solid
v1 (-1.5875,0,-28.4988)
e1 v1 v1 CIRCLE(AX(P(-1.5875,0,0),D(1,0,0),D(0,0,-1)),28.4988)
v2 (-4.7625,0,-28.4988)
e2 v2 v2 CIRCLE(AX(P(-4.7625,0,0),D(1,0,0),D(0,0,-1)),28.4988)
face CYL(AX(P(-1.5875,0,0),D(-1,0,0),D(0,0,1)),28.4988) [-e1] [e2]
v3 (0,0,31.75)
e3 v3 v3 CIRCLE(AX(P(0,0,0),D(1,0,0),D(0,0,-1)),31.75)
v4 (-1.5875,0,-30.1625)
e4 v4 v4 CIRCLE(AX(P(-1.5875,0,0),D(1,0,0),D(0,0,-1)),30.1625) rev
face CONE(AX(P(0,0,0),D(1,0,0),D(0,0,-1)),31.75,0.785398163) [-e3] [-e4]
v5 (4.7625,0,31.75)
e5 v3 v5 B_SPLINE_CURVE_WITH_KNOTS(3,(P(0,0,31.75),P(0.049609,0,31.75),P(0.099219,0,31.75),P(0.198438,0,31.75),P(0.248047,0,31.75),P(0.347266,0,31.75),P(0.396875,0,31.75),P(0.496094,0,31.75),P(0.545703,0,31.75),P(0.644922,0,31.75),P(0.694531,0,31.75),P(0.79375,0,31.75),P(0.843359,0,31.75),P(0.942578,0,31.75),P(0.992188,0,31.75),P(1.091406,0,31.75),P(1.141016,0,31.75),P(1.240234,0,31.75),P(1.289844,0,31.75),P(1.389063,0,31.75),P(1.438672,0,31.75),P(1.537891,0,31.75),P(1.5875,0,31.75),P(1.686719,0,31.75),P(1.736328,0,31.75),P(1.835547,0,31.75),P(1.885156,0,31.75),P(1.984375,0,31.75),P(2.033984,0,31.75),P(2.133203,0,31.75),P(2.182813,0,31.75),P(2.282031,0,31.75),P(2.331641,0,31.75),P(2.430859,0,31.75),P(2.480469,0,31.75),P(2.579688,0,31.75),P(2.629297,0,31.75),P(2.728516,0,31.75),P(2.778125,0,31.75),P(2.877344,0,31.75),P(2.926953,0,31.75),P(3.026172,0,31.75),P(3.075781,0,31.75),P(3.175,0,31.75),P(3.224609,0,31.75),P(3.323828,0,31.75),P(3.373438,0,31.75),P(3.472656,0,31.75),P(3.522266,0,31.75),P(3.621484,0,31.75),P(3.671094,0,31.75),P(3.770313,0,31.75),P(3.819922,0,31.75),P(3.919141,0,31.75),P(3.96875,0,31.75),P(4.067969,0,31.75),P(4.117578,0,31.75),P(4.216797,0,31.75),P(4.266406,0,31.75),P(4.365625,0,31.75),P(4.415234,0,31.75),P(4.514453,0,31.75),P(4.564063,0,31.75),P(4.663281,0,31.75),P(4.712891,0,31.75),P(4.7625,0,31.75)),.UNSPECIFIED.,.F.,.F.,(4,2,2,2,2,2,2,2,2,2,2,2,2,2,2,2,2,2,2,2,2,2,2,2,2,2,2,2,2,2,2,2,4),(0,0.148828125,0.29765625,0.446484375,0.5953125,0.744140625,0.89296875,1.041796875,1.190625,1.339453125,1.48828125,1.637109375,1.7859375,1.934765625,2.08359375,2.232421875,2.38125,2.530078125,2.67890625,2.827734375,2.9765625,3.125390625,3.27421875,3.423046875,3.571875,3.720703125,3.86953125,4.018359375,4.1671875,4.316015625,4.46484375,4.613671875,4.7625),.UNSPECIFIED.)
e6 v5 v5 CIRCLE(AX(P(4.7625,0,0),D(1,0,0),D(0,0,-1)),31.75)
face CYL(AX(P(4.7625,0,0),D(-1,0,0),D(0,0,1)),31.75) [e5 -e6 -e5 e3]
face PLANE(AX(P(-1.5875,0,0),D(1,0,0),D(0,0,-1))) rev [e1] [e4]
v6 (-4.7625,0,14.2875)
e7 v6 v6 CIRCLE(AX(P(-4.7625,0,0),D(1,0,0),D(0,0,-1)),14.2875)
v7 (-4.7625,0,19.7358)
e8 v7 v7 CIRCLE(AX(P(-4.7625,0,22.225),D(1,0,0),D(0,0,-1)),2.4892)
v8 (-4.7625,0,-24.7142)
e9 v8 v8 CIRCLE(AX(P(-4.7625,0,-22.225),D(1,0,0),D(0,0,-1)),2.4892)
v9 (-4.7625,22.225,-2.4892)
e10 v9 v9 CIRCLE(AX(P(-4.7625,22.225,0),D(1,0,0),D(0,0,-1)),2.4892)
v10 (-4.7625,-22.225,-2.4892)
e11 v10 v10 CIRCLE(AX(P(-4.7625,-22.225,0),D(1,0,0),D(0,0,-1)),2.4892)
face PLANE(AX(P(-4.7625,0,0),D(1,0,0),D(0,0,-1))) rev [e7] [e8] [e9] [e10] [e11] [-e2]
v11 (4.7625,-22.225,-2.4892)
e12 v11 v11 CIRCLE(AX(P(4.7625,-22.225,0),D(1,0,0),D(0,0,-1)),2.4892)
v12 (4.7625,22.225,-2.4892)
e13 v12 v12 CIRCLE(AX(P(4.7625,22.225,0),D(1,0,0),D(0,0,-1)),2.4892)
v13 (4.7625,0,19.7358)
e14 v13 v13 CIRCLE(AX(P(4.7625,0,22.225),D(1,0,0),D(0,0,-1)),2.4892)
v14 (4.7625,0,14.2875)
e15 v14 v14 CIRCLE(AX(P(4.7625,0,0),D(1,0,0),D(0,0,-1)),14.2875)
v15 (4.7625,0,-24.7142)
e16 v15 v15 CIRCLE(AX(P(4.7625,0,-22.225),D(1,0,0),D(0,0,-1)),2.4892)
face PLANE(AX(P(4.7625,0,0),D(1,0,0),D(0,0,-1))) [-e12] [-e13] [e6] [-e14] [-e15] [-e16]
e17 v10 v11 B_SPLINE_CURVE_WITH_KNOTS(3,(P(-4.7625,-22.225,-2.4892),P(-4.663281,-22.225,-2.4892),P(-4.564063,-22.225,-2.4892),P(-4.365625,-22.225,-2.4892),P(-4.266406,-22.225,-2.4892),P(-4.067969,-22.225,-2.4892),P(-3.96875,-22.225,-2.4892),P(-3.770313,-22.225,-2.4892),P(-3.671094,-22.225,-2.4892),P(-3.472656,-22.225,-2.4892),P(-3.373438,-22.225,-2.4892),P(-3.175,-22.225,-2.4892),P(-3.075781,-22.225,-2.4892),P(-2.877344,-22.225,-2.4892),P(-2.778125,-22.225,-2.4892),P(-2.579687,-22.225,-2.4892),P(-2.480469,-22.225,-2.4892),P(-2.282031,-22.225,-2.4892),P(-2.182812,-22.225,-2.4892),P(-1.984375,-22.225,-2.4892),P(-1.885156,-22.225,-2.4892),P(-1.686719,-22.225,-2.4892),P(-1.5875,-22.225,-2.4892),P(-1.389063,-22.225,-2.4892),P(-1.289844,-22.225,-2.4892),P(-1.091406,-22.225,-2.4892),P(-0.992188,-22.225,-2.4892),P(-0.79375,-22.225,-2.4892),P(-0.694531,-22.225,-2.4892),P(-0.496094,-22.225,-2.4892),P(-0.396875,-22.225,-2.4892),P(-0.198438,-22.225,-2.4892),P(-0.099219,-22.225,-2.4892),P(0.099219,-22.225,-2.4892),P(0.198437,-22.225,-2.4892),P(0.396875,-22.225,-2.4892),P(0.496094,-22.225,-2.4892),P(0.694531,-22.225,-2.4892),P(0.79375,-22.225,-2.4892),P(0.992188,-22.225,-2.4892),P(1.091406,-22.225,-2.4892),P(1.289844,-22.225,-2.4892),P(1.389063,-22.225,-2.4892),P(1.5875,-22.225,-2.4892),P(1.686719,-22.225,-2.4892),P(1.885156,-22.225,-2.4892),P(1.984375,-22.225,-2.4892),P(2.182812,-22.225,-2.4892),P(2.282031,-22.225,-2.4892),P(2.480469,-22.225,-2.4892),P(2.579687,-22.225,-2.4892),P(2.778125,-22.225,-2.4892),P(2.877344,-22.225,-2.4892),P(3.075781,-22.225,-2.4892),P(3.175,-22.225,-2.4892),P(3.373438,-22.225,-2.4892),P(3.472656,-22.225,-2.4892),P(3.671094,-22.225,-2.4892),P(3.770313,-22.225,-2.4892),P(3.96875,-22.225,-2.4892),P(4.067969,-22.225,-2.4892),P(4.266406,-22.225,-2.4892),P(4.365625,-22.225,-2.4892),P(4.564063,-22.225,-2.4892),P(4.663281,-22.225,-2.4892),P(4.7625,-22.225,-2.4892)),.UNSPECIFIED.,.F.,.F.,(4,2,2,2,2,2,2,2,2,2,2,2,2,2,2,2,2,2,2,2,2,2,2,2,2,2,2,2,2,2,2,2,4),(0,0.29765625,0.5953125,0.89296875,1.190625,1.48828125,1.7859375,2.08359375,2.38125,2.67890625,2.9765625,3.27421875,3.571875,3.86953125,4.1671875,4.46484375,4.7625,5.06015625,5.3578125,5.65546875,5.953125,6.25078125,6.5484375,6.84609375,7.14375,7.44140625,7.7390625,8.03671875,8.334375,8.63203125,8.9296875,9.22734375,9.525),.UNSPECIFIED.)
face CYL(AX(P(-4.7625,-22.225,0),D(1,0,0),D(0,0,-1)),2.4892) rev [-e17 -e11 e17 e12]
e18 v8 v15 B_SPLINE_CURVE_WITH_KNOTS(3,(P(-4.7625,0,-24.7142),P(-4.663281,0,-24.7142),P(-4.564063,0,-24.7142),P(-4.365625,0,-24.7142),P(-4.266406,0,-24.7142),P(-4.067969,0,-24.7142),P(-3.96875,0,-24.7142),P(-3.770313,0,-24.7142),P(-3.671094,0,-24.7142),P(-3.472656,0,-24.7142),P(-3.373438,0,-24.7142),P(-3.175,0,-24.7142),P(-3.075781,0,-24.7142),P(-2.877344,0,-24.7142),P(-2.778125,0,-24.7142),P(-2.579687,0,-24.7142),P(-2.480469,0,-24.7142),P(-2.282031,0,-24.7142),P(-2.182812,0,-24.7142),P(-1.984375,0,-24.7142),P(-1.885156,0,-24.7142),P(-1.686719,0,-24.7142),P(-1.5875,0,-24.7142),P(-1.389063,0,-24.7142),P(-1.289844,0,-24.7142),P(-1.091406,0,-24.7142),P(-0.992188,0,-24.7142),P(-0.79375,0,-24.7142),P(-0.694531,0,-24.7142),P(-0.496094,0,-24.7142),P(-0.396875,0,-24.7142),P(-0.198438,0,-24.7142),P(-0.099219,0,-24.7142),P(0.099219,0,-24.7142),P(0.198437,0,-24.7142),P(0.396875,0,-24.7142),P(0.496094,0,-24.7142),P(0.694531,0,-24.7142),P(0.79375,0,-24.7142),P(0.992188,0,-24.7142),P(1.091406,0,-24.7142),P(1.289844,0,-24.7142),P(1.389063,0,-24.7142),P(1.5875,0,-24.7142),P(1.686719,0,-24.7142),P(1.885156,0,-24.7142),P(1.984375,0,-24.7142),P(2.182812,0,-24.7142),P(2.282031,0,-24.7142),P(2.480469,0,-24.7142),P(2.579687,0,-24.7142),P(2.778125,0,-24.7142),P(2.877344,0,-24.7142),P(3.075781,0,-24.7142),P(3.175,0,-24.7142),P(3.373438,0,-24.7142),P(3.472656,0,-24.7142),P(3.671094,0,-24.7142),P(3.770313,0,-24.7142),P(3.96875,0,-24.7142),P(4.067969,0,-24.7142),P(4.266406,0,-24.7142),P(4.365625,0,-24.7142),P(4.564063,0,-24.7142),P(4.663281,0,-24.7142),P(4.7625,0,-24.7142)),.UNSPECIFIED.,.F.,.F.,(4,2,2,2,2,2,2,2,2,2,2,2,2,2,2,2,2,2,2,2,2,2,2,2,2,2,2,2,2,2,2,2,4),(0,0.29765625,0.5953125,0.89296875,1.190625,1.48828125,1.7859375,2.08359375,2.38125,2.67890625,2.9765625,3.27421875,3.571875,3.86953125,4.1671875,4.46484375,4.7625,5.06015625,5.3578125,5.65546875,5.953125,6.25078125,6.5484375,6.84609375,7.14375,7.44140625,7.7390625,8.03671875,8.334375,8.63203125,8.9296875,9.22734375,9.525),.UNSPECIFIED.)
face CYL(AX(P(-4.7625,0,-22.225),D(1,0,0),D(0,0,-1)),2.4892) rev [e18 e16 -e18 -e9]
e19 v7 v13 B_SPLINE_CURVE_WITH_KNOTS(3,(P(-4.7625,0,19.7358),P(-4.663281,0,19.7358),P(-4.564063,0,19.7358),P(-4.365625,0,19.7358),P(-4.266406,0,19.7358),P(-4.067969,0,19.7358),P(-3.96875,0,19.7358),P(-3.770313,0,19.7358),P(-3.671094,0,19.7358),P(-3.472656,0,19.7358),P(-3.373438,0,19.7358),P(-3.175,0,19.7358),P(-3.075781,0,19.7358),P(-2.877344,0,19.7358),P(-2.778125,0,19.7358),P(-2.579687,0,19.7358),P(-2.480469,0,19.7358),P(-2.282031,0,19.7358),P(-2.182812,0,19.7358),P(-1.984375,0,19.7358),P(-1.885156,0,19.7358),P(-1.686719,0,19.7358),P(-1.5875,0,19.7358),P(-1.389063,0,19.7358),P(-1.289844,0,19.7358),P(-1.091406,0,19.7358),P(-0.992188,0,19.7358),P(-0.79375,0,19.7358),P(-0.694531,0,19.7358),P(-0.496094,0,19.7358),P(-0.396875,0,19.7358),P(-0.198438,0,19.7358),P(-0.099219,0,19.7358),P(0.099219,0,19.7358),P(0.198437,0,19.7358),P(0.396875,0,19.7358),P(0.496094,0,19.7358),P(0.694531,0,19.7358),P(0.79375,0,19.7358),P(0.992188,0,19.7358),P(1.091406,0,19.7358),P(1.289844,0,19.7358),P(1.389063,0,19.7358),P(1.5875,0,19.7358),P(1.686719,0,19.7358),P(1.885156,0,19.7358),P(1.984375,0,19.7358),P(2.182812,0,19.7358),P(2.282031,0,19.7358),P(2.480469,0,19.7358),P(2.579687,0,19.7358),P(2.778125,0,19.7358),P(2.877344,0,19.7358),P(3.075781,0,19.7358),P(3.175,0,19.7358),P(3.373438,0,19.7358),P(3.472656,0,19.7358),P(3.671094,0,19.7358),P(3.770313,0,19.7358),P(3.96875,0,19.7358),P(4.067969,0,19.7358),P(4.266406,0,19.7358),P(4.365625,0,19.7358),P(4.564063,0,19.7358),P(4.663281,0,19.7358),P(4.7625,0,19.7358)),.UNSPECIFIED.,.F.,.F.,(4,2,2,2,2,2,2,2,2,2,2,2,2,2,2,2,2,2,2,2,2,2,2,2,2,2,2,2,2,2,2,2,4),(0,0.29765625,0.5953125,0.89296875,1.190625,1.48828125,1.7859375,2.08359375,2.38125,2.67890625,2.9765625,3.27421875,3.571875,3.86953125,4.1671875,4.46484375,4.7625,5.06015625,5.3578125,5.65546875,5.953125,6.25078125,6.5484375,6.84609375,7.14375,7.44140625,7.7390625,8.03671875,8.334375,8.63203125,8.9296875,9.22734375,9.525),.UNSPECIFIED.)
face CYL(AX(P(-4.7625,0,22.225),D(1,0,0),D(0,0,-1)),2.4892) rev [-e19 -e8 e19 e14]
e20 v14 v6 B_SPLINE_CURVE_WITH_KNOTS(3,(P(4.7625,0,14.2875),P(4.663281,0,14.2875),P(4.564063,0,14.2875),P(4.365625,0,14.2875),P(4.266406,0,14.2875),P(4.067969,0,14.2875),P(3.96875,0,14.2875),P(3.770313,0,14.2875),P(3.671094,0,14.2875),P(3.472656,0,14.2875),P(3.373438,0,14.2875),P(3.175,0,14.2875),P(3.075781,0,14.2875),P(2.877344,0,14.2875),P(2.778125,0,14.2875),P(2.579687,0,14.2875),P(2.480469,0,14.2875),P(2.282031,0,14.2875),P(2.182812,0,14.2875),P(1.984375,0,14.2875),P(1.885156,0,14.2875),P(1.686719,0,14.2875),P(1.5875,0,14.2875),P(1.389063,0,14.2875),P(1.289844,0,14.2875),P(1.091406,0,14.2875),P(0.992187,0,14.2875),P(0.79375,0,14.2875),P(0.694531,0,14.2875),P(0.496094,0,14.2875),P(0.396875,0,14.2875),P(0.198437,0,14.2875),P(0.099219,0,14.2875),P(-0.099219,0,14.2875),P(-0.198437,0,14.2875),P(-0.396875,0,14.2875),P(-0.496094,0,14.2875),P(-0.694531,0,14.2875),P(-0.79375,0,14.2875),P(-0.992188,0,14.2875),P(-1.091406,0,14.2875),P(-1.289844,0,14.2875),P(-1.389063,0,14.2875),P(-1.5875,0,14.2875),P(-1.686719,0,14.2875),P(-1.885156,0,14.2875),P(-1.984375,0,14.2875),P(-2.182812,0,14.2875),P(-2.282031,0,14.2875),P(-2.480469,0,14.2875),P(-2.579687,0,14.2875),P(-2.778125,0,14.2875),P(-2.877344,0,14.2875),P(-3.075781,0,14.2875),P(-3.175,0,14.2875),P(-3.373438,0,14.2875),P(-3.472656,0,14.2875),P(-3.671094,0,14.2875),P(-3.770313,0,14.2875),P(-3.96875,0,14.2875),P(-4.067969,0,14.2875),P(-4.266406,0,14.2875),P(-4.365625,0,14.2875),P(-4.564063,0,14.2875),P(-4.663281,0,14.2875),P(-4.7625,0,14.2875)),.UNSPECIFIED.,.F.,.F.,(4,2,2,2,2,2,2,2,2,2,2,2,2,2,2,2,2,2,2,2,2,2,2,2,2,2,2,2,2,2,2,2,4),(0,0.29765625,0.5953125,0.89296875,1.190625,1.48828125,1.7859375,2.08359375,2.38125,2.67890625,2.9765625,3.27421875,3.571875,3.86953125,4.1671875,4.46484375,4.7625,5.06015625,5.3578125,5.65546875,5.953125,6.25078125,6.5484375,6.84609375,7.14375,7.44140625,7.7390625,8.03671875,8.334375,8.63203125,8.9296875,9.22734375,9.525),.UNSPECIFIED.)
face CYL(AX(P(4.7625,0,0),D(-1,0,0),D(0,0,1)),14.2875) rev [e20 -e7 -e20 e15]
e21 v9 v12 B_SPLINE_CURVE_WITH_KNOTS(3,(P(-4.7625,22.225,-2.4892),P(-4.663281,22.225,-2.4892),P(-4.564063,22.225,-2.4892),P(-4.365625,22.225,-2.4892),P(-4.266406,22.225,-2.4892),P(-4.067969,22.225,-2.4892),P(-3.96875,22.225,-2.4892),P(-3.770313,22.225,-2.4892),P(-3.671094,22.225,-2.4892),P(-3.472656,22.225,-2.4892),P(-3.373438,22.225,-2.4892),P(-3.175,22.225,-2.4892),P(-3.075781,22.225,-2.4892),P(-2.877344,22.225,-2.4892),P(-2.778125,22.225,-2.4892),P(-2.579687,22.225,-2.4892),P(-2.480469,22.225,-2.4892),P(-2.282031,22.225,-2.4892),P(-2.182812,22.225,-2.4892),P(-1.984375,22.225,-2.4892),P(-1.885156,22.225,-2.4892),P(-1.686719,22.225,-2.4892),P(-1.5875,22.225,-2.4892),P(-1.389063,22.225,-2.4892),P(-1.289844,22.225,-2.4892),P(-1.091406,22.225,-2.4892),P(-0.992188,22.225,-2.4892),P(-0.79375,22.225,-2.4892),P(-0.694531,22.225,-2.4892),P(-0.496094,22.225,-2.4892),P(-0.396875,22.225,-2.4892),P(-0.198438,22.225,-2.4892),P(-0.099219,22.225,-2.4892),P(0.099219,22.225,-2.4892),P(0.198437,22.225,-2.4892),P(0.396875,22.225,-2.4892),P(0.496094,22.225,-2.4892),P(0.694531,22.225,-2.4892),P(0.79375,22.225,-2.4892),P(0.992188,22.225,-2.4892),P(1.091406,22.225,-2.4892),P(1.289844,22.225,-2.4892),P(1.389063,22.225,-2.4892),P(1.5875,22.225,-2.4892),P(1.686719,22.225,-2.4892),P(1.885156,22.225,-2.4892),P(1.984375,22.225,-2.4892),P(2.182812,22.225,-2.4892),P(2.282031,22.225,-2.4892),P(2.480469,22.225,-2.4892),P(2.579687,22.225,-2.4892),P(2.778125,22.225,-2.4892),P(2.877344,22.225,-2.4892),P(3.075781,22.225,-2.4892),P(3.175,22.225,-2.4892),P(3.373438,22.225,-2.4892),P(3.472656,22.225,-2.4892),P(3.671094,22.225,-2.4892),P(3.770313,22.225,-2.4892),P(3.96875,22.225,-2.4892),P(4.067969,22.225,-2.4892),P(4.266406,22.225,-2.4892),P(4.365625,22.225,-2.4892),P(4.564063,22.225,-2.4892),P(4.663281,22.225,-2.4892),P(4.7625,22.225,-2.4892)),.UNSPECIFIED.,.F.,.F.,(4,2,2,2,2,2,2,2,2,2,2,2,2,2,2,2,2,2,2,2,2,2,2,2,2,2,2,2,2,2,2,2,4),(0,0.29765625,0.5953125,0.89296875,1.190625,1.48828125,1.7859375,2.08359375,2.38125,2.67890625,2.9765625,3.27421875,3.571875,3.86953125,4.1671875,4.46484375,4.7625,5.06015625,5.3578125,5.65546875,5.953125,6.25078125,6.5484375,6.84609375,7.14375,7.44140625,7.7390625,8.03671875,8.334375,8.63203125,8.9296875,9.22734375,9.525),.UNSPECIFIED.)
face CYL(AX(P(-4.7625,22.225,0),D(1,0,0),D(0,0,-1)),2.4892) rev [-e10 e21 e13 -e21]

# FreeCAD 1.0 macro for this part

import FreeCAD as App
import Part
import Sketcher
from FreeCAD import Vector
Q = App.Units.Quantity


def edges_at(feature, points):
    """Names of the edges that pass closest to the given points."""
    edges = feature.Shape.Edges
    near = lambda p: min(range(len(edges)), key=lambda i: edges[i].distToShape(Part.Vertex(*p))[0])
    return sorted({f"Edge{near(p) + 1}" for p in points})

doc = App.newDocument("Part")
params = doc.addObject("Spreadsheet::Sheet", "Params")
for row, (alias, value) in enumerate([
    ("sketch1_diameter", "2.5 in"),
    ("sketch1_diameter2", "1.125 in"),
    ("pad1_length", "0.375 in"),
    ("sketch2_diameter", "2.5 in"),
    ("sketch2_diameter2", "2.244 in"),
    ("pocket1_length", "0.125 in"),
    ("sketch3_diameter", "0.196 in"),
    ("chamfer_size", "0.0625 in"),
], start=1):
    params.set(f"A{row}", alias)
    params.set(f"B{row}", "=" + value)
    params.setAlias(f"B{row}", alias)

body = doc.addObject("PartDesign::Body", "Body")

# Sketch on YZ plane
sketch1 = body.newObject("Sketcher::SketchObject", "Sketch")
sketch1.AttachmentSupport = (doc.getObject("YZ_Plane"), [""])
sketch1.MapMode = "FlatFace"
sketch1.addGeometry([
    Part.Circle(Vector(0, 0, 0), Vector(0, 0, 1), 32),
    Part.Circle(Vector(0, 0, 0), Vector(0, 0, 1), 14),
], False)
sketch1.addConstraint([
    Sketcher.Constraint("Coincident", 0, 3, -1, 1),
    Sketcher.Constraint("Coincident", 1, 3, -1, 1),
    Sketcher.Constraint("Diameter", 0, Q("2.5 in")),
    Sketcher.Constraint("Diameter", 1, Q("1.125 in")),
])
sketch1.setExpression("Constraints[2]", "Params.sketch1_diameter")
sketch1.setExpression("Constraints[3]", "Params.sketch1_diameter2")
pad1 = body.newObject("PartDesign::Pad", "Pad")
pad1.Profile = sketch1
pad1.setExpression("Length", "Params.pad1_length")
pad1.Midplane = True

# Sketch on YZ plane
sketch2 = body.newObject("Sketcher::SketchObject", "Sketch001")
sketch2.AttachmentSupport = (doc.getObject("YZ_Plane"), [""])
sketch2.MapMode = "FlatFace"
sketch2.AttachmentOffset = App.Placement(Vector(0, 0, -0.0625 * 25.4), App.Rotation())
sketch2.addGeometry([
    Part.Circle(Vector(0, 0, 0), Vector(0, 0, 1), 32),
    Part.Circle(Vector(0, 0, 0), Vector(0, 0, 1), 28),
], False)
sketch2.addConstraint([
    Sketcher.Constraint("Coincident", 0, 3, -1, 1),
    Sketcher.Constraint("Coincident", 1, 3, -1, 1),
    Sketcher.Constraint("Diameter", 0, Q("2.5 in")),
    Sketcher.Constraint("Diameter", 1, Q("2.244 in")),
])
sketch2.setExpression("Constraints[2]", "Params.sketch2_diameter")
sketch2.setExpression("Constraints[3]", "Params.sketch2_diameter2")
pocket1 = body.newObject("PartDesign::Pocket", "Pocket")
pocket1.Profile = sketch2
pocket1.setExpression("Length", "Params.pocket1_length")

# Sketch on YZ plane
sketch3 = body.newObject("Sketcher::SketchObject", "Sketch002")
sketch3.AttachmentSupport = (doc.getObject("YZ_Plane"), [""])
sketch3.MapMode = "FlatFace"
sketch3.AttachmentOffset = App.Placement(Vector(0, 0, 0.1875 * 25.4), App.Rotation())
sketch3.addGeometry([
    Part.Circle(Vector(22.2, 0, 0), Vector(0, 0, 1), 2.5),
    Part.Circle(Vector(0, 22.2, 0), Vector(0, 0, 1), 2.5),
    Part.Circle(Vector(-22.2, 0, 0), Vector(0, 0, 1), 2.5),
    Part.Circle(Vector(0, -22.2, 0), Vector(0, 0, 1), 2.5),
], False)
sketch3.addConstraint([
    Sketcher.Constraint("Equal", 0, 1),
    Sketcher.Constraint("Equal", 1, 2),
    Sketcher.Constraint("Equal", 2, 3),
    Sketcher.Constraint("Symmetric", 0, 3, 2, 3, -1, 1),
    Sketcher.Constraint("Symmetric", 1, 3, 3, 3, -1, 1),
    Sketcher.Constraint("PointOnObject", 0, 3, -1),
    Sketcher.Constraint("PointOnObject", 1, 3, -2),
    Sketcher.Constraint("Diameter", 0, Q("0.196 in")),
    Sketcher.Constraint("DistanceX", 2, 3, 0, 3, Q("1.75 in")),
    Sketcher.Constraint("DistanceY", 3, 3, 1, 3, Q("1.75 in")),
])
sketch3.setExpression("Constraints[7]", "Params.sketch3_diameter")
pocket2 = body.newObject("PartDesign::Pocket", "Pocket001")
pocket2.Profile = sketch3
pocket2.Type = "ThroughAll"
doc.recompute()

chamfer = body.newObject("PartDesign::Chamfer", "Chamfer")
chamfer.Base = (pocket2, edges_at(pocket2, [(-1.587, 0, -31.75)]))
chamfer.setExpression("Size", "Params.chamfer_size")

doc.recompute()
